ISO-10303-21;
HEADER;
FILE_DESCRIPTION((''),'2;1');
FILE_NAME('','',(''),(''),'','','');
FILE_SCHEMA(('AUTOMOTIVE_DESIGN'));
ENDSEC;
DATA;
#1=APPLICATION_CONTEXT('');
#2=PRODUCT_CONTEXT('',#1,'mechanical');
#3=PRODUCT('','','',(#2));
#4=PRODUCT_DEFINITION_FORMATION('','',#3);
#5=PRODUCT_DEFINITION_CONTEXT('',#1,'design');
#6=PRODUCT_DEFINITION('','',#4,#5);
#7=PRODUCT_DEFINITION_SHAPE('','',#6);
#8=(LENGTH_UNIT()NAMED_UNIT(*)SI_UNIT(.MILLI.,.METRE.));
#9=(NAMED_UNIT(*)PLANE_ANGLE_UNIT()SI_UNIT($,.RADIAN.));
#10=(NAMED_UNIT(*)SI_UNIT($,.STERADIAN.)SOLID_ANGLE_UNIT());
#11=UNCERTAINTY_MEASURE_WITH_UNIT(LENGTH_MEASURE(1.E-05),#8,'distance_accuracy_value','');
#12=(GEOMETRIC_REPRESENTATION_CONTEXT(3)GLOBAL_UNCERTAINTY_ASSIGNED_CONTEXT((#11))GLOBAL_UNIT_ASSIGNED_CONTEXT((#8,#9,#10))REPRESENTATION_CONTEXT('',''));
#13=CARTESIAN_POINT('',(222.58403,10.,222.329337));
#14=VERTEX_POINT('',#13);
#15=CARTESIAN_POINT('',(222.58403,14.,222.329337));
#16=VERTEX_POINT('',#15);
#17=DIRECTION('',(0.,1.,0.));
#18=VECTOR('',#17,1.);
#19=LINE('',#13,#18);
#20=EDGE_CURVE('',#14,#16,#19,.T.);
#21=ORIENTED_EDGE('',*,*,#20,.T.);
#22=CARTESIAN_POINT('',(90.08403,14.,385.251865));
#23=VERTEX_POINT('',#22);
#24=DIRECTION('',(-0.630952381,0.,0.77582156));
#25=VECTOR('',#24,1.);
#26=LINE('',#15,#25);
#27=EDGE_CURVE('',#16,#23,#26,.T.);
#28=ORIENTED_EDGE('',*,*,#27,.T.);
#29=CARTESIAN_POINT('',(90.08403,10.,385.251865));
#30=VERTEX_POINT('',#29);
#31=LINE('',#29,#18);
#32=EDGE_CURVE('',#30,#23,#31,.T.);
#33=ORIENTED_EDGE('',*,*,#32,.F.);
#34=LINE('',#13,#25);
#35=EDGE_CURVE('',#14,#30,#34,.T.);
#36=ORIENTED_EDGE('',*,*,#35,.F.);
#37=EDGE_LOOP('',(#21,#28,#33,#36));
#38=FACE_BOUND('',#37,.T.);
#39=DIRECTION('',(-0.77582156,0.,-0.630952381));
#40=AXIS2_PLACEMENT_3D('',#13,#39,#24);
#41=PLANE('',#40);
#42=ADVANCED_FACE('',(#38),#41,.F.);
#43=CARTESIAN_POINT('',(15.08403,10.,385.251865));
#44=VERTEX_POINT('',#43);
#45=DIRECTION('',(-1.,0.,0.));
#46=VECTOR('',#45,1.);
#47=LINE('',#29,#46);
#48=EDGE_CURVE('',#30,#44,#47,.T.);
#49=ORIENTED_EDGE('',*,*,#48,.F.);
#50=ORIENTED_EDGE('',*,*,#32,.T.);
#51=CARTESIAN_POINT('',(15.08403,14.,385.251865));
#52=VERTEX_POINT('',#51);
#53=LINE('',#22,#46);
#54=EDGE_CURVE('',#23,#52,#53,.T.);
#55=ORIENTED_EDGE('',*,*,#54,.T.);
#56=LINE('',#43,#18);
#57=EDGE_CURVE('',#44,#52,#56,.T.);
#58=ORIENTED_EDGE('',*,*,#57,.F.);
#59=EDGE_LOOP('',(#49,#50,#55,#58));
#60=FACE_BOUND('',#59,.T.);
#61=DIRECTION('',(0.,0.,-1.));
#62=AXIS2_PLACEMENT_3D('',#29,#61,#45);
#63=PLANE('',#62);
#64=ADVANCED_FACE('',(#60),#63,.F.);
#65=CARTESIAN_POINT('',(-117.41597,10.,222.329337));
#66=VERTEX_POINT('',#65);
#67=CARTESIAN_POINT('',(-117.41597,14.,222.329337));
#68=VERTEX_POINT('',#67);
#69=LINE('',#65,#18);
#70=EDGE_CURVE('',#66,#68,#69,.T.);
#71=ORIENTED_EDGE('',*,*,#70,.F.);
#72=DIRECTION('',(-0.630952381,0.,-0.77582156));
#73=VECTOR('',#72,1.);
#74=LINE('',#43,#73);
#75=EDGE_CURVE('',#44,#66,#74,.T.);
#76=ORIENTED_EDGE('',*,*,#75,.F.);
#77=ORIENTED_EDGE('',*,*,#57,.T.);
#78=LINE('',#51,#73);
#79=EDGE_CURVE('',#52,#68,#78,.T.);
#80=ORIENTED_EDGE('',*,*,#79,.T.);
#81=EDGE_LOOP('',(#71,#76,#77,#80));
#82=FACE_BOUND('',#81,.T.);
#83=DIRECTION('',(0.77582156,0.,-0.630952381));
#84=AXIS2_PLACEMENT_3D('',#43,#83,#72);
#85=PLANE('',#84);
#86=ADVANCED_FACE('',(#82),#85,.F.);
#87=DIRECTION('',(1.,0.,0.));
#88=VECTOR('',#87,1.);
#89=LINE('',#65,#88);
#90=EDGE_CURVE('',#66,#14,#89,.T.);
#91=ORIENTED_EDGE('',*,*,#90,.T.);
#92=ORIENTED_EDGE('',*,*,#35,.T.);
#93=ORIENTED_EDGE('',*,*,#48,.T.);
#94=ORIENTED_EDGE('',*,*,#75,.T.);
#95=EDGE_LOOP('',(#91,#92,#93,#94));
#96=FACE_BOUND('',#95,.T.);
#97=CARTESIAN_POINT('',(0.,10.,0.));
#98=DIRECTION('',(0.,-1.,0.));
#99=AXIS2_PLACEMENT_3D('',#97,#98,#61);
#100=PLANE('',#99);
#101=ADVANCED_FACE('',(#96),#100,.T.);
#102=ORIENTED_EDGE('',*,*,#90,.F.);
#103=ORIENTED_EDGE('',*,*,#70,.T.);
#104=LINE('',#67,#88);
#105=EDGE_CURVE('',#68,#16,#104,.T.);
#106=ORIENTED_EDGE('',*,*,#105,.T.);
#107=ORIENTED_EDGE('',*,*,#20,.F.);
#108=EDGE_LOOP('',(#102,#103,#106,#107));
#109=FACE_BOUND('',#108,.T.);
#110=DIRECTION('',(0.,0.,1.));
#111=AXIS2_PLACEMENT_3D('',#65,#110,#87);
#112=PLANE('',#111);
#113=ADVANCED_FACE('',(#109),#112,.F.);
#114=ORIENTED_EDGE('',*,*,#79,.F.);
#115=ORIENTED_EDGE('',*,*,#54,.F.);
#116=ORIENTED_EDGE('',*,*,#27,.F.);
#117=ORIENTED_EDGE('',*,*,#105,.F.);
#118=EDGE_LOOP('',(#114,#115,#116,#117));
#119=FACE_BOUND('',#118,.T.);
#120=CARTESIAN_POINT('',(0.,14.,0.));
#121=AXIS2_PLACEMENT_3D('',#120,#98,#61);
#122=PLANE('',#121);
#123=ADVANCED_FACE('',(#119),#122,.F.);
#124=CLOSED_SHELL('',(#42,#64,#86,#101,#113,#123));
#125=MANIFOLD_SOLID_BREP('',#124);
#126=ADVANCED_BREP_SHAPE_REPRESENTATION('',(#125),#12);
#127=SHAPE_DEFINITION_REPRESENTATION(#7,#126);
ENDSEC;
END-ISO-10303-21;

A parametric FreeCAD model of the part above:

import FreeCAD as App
import Part
import Sketcher
from FreeCAD import Vector

doc = App.newDocument("Part")
body = doc.addObject("PartDesign::Body", "Body")

# Sketch on XZ plane
sketch1 = body.newObject("Sketcher::SketchObject", "Sketch")
sketch1.AttachmentSupport = (doc.getObject("XZ_Plane"), [""])
sketch1.MapMode = "FlatFace"
sketch1.AttachmentOffset = App.Placement(Vector(0, 0, -10), App.Rotation())
sketch1.addGeometry([
    Part.LineSegment(Vector(-117, 222, 0), Vector(223, 222, 0)),
    Part.LineSegment(Vector(223, 222, 0), Vector(90, 385, 0)),
    Part.LineSegment(Vector(90, 385, 0), Vector(15, 385, 0)),
    Part.LineSegment(Vector(15, 385, 0), Vector(-117, 222, 0)),
], False)
sketch1.addConstraint([
    Sketcher.Constraint("Coincident", 0, 2, 1, 1),
    Sketcher.Constraint("Coincident", 1, 2, 2, 1),
    Sketcher.Constraint("Coincident", 2, 2, 3, 1),
    Sketcher.Constraint("Coincident", 3, 2, 0, 1),
    Sketcher.Constraint("Horizontal", 0),
    Sketcher.Constraint("Horizontal", 2),
    Sketcher.Constraint("Equal", 1, 3),
    Sketcher.Constraint("DistanceX", 0, 1, 0, 2, 340.0),
    Sketcher.Constraint("DistanceX", 2, 2, 2, 1, 75.0),
    Sketcher.Constraint("Distance", 1, 210.0),
    Sketcher.Constraint("DistanceX", -1, 1, 0, 2, 222.58403),
    Sketcher.Constraint("DistanceY", -1, 1, 0, 2, 222.329337),
])
pad1 = body.newObject("PartDesign::Pad", "Pad")
pad1.Profile = sketch1
pad1.Length = 4
pad1.Reversed = True

doc.recompute()
